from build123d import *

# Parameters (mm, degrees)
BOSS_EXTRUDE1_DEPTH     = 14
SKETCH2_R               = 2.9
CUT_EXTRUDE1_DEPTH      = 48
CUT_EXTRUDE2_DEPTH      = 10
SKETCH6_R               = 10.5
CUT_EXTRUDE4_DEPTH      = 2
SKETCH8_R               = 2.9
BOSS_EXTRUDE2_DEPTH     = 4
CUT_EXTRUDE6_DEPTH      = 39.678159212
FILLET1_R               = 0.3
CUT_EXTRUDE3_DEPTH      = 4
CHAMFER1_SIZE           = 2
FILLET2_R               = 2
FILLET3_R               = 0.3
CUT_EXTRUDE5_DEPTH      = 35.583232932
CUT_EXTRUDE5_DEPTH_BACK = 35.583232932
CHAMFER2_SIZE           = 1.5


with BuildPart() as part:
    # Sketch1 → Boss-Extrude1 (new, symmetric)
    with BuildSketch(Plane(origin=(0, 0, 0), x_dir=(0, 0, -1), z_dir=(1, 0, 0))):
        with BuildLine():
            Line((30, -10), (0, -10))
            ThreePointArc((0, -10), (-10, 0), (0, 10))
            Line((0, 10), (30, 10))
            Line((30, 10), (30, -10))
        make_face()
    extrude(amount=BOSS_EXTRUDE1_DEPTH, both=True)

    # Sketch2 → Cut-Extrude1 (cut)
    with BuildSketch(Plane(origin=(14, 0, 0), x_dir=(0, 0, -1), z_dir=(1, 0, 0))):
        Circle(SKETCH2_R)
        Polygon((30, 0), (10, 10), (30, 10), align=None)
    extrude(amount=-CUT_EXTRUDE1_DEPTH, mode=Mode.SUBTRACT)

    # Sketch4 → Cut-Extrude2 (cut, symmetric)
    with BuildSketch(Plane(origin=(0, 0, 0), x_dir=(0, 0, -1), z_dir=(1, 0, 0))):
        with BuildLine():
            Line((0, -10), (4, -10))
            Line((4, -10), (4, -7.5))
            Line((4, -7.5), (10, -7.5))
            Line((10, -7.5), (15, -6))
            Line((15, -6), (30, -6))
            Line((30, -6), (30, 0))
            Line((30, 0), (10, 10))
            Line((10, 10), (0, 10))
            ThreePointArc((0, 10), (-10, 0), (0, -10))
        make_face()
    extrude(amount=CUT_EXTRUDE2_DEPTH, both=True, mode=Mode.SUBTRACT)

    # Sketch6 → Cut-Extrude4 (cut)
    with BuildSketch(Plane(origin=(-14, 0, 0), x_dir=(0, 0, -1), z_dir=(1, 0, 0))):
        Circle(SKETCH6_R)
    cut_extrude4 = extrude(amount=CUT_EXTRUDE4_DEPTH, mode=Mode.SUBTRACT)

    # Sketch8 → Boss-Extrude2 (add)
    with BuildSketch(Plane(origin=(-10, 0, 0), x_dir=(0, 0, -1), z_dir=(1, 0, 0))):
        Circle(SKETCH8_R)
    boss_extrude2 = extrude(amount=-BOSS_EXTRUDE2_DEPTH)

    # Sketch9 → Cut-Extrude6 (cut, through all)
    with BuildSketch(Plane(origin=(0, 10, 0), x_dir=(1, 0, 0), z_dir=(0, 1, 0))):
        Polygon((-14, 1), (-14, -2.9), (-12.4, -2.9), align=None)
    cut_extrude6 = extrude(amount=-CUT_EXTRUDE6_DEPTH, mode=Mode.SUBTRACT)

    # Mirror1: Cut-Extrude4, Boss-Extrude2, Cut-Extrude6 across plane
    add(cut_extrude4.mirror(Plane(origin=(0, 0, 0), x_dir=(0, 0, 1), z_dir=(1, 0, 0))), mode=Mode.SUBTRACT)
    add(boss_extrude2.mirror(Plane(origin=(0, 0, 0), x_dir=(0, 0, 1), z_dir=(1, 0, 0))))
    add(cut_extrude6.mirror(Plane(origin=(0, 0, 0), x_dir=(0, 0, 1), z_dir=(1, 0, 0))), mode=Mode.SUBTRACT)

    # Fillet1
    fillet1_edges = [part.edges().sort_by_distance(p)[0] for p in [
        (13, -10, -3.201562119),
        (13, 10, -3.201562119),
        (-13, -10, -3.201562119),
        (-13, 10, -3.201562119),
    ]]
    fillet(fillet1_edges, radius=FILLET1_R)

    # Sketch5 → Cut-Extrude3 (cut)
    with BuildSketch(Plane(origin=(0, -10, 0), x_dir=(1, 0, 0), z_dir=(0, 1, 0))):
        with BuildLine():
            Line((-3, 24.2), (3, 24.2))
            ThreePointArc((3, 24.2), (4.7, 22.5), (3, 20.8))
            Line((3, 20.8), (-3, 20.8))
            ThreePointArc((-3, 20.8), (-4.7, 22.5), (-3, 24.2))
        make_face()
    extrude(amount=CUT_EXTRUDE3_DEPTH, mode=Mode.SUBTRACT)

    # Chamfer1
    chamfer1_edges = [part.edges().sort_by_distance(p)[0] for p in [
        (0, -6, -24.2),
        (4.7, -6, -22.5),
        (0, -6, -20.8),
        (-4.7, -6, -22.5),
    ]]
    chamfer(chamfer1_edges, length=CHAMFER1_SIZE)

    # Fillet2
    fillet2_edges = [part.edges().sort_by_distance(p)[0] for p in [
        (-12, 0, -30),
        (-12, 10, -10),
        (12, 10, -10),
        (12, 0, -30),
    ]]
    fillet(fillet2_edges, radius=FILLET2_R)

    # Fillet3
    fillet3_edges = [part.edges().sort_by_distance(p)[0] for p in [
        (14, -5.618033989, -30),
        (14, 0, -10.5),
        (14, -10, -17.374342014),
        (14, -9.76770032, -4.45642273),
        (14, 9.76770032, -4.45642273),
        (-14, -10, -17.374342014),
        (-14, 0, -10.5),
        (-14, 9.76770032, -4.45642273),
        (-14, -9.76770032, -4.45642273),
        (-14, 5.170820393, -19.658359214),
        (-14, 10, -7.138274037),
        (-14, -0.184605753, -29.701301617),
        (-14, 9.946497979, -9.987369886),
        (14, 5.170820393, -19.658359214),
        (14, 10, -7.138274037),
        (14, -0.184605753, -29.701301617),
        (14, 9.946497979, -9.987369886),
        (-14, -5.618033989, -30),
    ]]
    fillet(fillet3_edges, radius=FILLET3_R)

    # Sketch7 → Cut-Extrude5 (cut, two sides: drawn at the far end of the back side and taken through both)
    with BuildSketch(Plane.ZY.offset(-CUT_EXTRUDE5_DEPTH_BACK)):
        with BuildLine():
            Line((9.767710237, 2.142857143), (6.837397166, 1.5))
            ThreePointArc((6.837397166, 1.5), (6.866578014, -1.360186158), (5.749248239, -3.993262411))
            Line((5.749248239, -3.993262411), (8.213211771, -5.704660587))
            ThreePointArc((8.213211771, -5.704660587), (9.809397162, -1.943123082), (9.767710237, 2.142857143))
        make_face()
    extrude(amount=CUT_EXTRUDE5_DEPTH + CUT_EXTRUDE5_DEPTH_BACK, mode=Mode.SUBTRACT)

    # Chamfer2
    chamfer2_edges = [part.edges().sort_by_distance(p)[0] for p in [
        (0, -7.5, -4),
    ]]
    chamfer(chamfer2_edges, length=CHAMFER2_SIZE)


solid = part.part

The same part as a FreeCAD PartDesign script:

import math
import FreeCAD as App
import Part
import Sketcher

V = App.Vector
Q = App.Units.Quantity


def edges_at(feature, points):
    """Names of the edges that pass closest to the given points."""
    edges = feature.Shape.Edges
    near = lambda p: min(range(len(edges)), key=lambda i: edges[i].distToShape(Part.Vertex(*p))[0])
    return sorted({f"Edge{near(p) + 1}" for p in points})

doc = App.newDocument("Part")
body = doc.addObject("PartDesign::Body", "Body")

# Sketch on YZ plane
sketch1 = doc.addObject("Sketcher::SketchObject", "Sketch")
body.addObject(sketch1)
sketch1.AttachmentSupport = (doc.YZ_Plane, [""])
sketch1.MapMode = "FlatFace"
sketch1.addGeometry([
    Part.LineSegment(V(-10, 0, 0), V(-10, -30, 0)),
    Part.LineSegment(V(-10, -30, 0), V(10, -30, 0)),
    Part.LineSegment(V(10, -30, 0), V(10, 0, 0)),
    Part.ArcOfCircle(Part.Circle(V(0, 0, 0), V(0, 0, 1), 10), math.radians(0), math.radians(180)),
], False)
sketch1.addConstraint([
    Sketcher.Constraint("Coincident", 0, 2, 1, 1),
    Sketcher.Constraint("Coincident", 1, 2, 2, 1),
    Sketcher.Constraint("Tangent", 2, 2, 3, 1),
    Sketcher.Constraint("Tangent", 3, 2, 0, 1),
    Sketcher.Constraint("Vertical", 0),
    Sketcher.Constraint("Horizontal", 1),
    Sketcher.Constraint("Vertical", 2),
    Sketcher.Constraint("Coincident", 3, 3, -1, 1),
    Sketcher.Constraint("Radius", 3, Q("10 mm")),
    Sketcher.Constraint("DistanceY", 0, 2, 0, 1, Q("30 mm")),
])
pad1 = doc.addObject("PartDesign::Pad", "Pad")
body.addObject(pad1)
pad1.Profile = sketch1
pad1.Length = 28
pad1.Midplane = True

# Sketch on YZ plane
sketch2 = doc.addObject("Sketcher::SketchObject", "Sketch001")
body.addObject(sketch2)
sketch2.AttachmentSupport = (doc.YZ_Plane, [""])
sketch2.MapMode = "FlatFace"
sketch2.AttachmentOffset = App.Placement(V(0, 0, 14), App.Rotation())
sketch2.addGeometry([
    Part.Circle(V(0, 0, 0), V(0, 0, 1), 2.9),
    Part.LineSegment(V(10, -10, 0), V(0, -30, 0)),
    Part.LineSegment(V(0, -30, 0), V(10, -30, 0)),
    Part.LineSegment(V(10, -30, 0), V(10, -10, 0)),
], False)
sketch2.addConstraint([
    Sketcher.Constraint("Coincident", 1, 2, 2, 1),
    Sketcher.Constraint("Coincident", 2, 2, 3, 1),
    Sketcher.Constraint("Coincident", 3, 2, 1, 1),
    Sketcher.Constraint("Horizontal", 2),
    Sketcher.Constraint("Vertical", 3),
    Sketcher.Constraint("Coincident", 0, 3, -1, 1),
    Sketcher.Constraint("PointOnObject", 1, 2, -2),
    Sketcher.Constraint("Diameter", 0, Q("5.8 mm")),
    Sketcher.Constraint("DistanceX", 2, 1, 2, 2, Q("10 mm")),
    Sketcher.Constraint("DistanceY", 3, 1, 3, 2, Q("20 mm")),
    Sketcher.Constraint("DistanceY", 1, 2, -1, 1, Q("30 mm")),
])
pocket1 = doc.addObject("PartDesign::Pocket", "Pocket")
body.addObject(pocket1)
pocket1.Profile = sketch2
pocket1.Length = 48

# Sketch on YZ plane
sketch3 = doc.addObject("Sketcher::SketchObject", "Sketch002")
body.addObject(sketch3)
sketch3.AttachmentSupport = (doc.YZ_Plane, [""])
sketch3.MapMode = "FlatFace"
sketch3.addGeometry([
    Part.LineSegment(V(-10, 0, 0), V(-10, -4, 0)),  # 0
    Part.LineSegment(V(-10, -4, 0), V(-7.5, -4, 0)),  # 1
    Part.LineSegment(V(-7.5, -4, 0), V(-7.5, -10, 0)),  # 2
    Part.LineSegment(V(-7.5, -10, 0), V(-6, -15, 0)),  # 3
    Part.LineSegment(V(-6, -15, 0), V(-6, -30, 0)),  # 4
    Part.LineSegment(V(-6, -30, 0), V(0, -30, 0)),  # 5
    Part.LineSegment(V(0, -30, 0), V(10, -10, 0)),  # 6
    Part.LineSegment(V(10, -10, 0), V(10, 0, 0)),  # 7
    Part.ArcOfCircle(Part.Circle(V(0, 0, 0), V(0, 0, 1), 10), math.radians(0), math.radians(180)),  # 8
], False)
sketch3.addConstraint([
    Sketcher.Constraint("Coincident", 0, 2, 1, 1),
    Sketcher.Constraint("Coincident", 1, 2, 2, 1),
    Sketcher.Constraint("Coincident", 2, 2, 3, 1),
    Sketcher.Constraint("Coincident", 3, 2, 4, 1),
    Sketcher.Constraint("Coincident", 4, 2, 5, 1),
    Sketcher.Constraint("Coincident", 5, 2, 6, 1),
    Sketcher.Constraint("Coincident", 6, 2, 7, 1),
    Sketcher.Constraint("Tangent", 7, 2, 8, 1),
    Sketcher.Constraint("Tangent", 8, 2, 0, 1),
    Sketcher.Constraint("Vertical", 0),
    Sketcher.Constraint("Horizontal", 1),
    Sketcher.Constraint("Vertical", 2),
    Sketcher.Constraint("Vertical", 4),
    Sketcher.Constraint("Horizontal", 5),
    Sketcher.Constraint("Vertical", 7),
    Sketcher.Constraint("Coincident", 8, 3, -1, 1),
    Sketcher.Constraint("PointOnObject", 5, 2, -2),
    Sketcher.Constraint("Horizontal", 2, 2, 6, 2),
    Sketcher.Constraint("Equal", 5, 2),
    Sketcher.Constraint("Radius", 8, Q("10 mm")),
    Sketcher.Constraint("DistanceX", 5, 1, 5, 2, Q("6 mm")),
    Sketcher.Constraint("DistanceY", 0, 2, 0, 1, Q("4 mm")),
    Sketcher.Constraint("DistanceY", 4, 2, 4, 1, Q("15 mm")),
    Sketcher.Constraint("DistanceX", 1, 1, 1, 2, Q("2.5 mm")),
    Sketcher.Constraint("DistanceY", 3, 2, -1, 1, Q("15 mm")),
])
pocket2 = doc.addObject("PartDesign::Pocket", "Pocket001")
body.addObject(pocket2)
pocket2.Profile = sketch3
pocket2.Length = 20
pocket2.Midplane = True

# Sketch on YZ plane
sketch4 = doc.addObject("Sketcher::SketchObject", "Sketch003")
body.addObject(sketch4)
sketch4.AttachmentSupport = (doc.YZ_Plane, [""])
sketch4.MapMode = "FlatFace"
sketch4.AttachmentOffset = App.Placement(V(0, 0, -14), App.Rotation())
sketch4.addGeometry(Part.Circle(V(0, 0, 0), V(0, 0, 1), 10), False)
sketch4.addConstraint([
    Sketcher.Constraint("Coincident", 0, 3, -1, 1),
    Sketcher.Constraint("Diameter", 0, Q("21 mm")),
])
pocket3 = doc.addObject("PartDesign::Pocket", "Pocket002")
body.addObject(pocket3)
pocket3.Profile = sketch4
pocket3.Length = 2
pocket3.Reversed = True

# Sketch on YZ plane
sketch5 = doc.addObject("Sketcher::SketchObject", "Sketch004")
body.addObject(sketch5)
sketch5.AttachmentSupport = (doc.YZ_Plane, [""])
sketch5.MapMode = "FlatFace"
sketch5.AttachmentOffset = App.Placement(V(0, 0, -10), App.Rotation())
sketch5.addGeometry(Part.Circle(V(0, 0, 0), V(0, 0, 1), 2.9), False)
sketch5.addConstraint([
    Sketcher.Constraint("Coincident", 0, 3, -1, 1),
    Sketcher.Constraint("Diameter", 0, Q("5.8 mm")),
])
pad2 = doc.addObject("PartDesign::Pad", "Pad001")
body.addObject(pad2)
pad2.Profile = sketch5
pad2.Length = 4
pad2.Reversed = True

# Sketch on XZ plane
sketch6 = doc.addObject("Sketcher::SketchObject", "Sketch005")
body.addObject(sketch6)
sketch6.AttachmentSupport = (doc.XZ_Plane, [""])
sketch6.MapMode = "FlatFace"
sketch6.AttachmentOffset = App.Placement(V(0, 0, -10), App.Rotation())
sketch6.addGeometry([
    Part.LineSegment(V(-14, -1, 0), V(-14, 2.9, 0)),
    Part.LineSegment(V(-14, 2.9, 0), V(-12.4, 2.9, 0)),
    Part.LineSegment(V(-12.4, 2.9, 0), V(-14, -1, 0)),
], False)
sketch6.addConstraint([
    Sketcher.Constraint("Coincident", 0, 2, 1, 1),
    Sketcher.Constraint("Coincident", 1, 2, 2, 1),
    Sketcher.Constraint("Coincident", 2, 2, 0, 1),
    Sketcher.Constraint("Vertical", 0),
    Sketcher.Constraint("Horizontal", 1),
    Sketcher.Constraint("DistanceX", 1, 1, 1, 2, Q("1.6 mm")),
    Sketcher.Constraint("DistanceY", 0, 1, 0, 2, Q("3.9 mm")),
    Sketcher.Constraint("DistanceX", 0, 2, -1, 1, Q("14 mm")),
    Sketcher.Constraint("DistanceY", 2, 2, -1, 1, Q("1 mm")),
])
pocket4 = doc.addObject("PartDesign::Pocket", "Pocket003")
body.addObject(pocket4)
pocket4.Profile = sketch6
pocket4.Type = "ThroughAll"
pocket4.Reversed = True
doc.recompute()

mirrored = doc.addObject("PartDesign::Mirrored", "Mirrored")
body.addObject(mirrored)
mirrored.Originals = [pocket3, pad2, pocket4]
mirrored.MirrorPlane = (doc.YZ_Plane, [""])
body.Tip = mirrored
doc.recompute()

fillet = doc.addObject("PartDesign::Fillet", "Fillet")
body.addObject(fillet)
fillet.Base = (mirrored, edges_at(mirrored, [
    (13, -10, -3.202),
    (13, 10, -3.202),
    (-13, -10, -3.202),
    (-13, 10, -3.202),
]))
fillet.Radius = 0.3

# Sketch on XZ plane
sketch7 = doc.addObject("Sketcher::SketchObject", "Sketch006")
body.addObject(sketch7)
sketch7.AttachmentSupport = (doc.XZ_Plane, [""])
sketch7.MapMode = "FlatFace"
sketch7.AttachmentOffset = App.Placement(V(0, 0, 10), App.Rotation())
sketch7.addGeometry([
    Part.LineSegment(V(3, -24.2, 0), V(-3, -24.2, 0)),
    Part.ArcOfCircle(Part.Circle(V(-3, -22.5, 0), V(0, 0, 1), 1.7), math.radians(90), math.radians(270)),
    Part.LineSegment(V(-3, -20.8, 0), V(3, -20.8, 0)),
    Part.ArcOfCircle(Part.Circle(V(3, -22.5, 0), V(0, 0, 1), 1.7), math.radians(-90), math.radians(90)),
], False)
sketch7.addConstraint([
    Sketcher.Constraint("Tangent", 0, 2, 1, 2),
    Sketcher.Constraint("Tangent", 1, 1, 2, 1),
    Sketcher.Constraint("Tangent", 2, 2, 3, 2),
    Sketcher.Constraint("Tangent", 3, 1, 0, 1),
    Sketcher.Constraint("Horizontal", 0),
    Sketcher.Constraint("Horizontal", 2),
    Sketcher.Constraint("Radius", 1, Q("1.7 mm")),
    Sketcher.Constraint("DistanceX", 0, 2, 0, 1, Q("6 mm")),
    Sketcher.Constraint("DistanceX", 1, 3, -1, 1, Q("3 mm")),
    Sketcher.Constraint("DistanceY", 1, 3, -1, 1, Q("22.5 mm")),
])
pocket5 = doc.addObject("PartDesign::Pocket", "Pocket004")
body.addObject(pocket5)
pocket5.Profile = sketch7
pocket5.Length = 4
doc.recompute()

chamfer = doc.addObject("PartDesign::Chamfer", "Chamfer")
body.addObject(chamfer)
chamfer.Base = (pocket5, edges_at(pocket5, [
    (0, -6, -24.2),
    (4.7, -6, -22.5),
    (0, -6, -20.8),
    (-4.7, -6, -22.5),
]))
chamfer.Size = 2
doc.recompute()

fillet2 = doc.addObject("PartDesign::Fillet", "Fillet001")
body.addObject(fillet2)
fillet2.Base = (chamfer, edges_at(chamfer, [
    (-12, 0, -30),
    (-12, 10, -10),
    (12, 10, -10),
    (12, 0, -30),
]))
fillet2.Radius = 2
doc.recompute()

fillet3 = doc.addObject("PartDesign::Fillet", "Fillet002")
body.addObject(fillet3)
fillet3.Base = (fillet2, edges_at(fillet2, [
    (14, -5.618, -30),
    (14, 0, -10.5),
    (14, -10, -17.374),
    (14, -9.768, -4.456),
    (14, 9.768, -4.456),
    (-14, -10, -17.374),
    (-14, 0, -10.5),
    (-14, 9.768, -4.456),
    (-14, -9.768, -4.456),
    (-14, 5.171, -19.658),
    (-14, 10, -7.138),
    (-14, -0.185, -29.701),
    (-14, 9.946, -9.987),
    (14, 5.171, -19.658),
    (14, 10, -7.138),
    (14, -0.185, -29.701),
    (14, 9.946, -9.987),
    (-14, -5.618, -30),
]))
fillet3.Radius = 0.3

# Sketch on YZ plane
sketch8 = doc.addObject("Sketcher::SketchObject", "Sketch007")
body.addObject(sketch8)
sketch8.AttachmentSupport = (doc.YZ_Plane, [""])
sketch8.MapMode = "FlatFace"
sketch8.addGeometry([
    Part.LineSegment(V(2.1, 9.8, 0), V(1.5, 6.8, 0)),
    Part.ArcOfCircle(Part.Circle(V(0, 0, 0), V(0, 0, 1), 7), math.radians(78), math.radians(125)),
    Part.LineSegment(V(-4, 5.7, 0), V(-5.7, 8.2, 0)),
    Part.ArcOfCircle(Part.Circle(V(0, 0, 0), V(0, 0, 1), 10), math.radians(78), math.radians(125)),
], False)
sketch8.addConstraint([
    Sketcher.Constraint("Coincident", 0, 2, 1, 1),
    Sketcher.Constraint("Coincident", 1, 2, 2, 1),
    Sketcher.Constraint("Coincident", 2, 2, 3, 2),
    Sketcher.Constraint("Coincident", 3, 1, 0, 1),
    Sketcher.Constraint("Coincident", 1, 3, -1, 1),
    Sketcher.Constraint("Coincident", 3, 3, -1, 1),
    Sketcher.Constraint("Radius", 1, Q("7 mm")),
    Sketcher.Constraint("Radius", 3, Q("10 mm")),
    Sketcher.Constraint("DistanceX", -1, 1, 0, 2, Q("1.5 mm")),
    Sketcher.Constraint("DistanceX", 2, 2, 1, 2, Q("1.711398 mm")),
    Sketcher.Constraint("DistanceY", 2, 2, 3, 1, Q("1.554498 mm")),
    Sketcher.Constraint("DistanceY", -1, 1, 1, 2, Q("5.749248 mm")),
])
pocket6 = doc.addObject("PartDesign::Pocket", "Pocket005")
body.addObject(pocket6)
pocket6.Profile = sketch8
pocket6.Type = "ThroughAll"
pocket6.Midplane = True
doc.recompute()

chamfer2 = doc.addObject("PartDesign::Chamfer", "Chamfer001")
body.addObject(chamfer2)
chamfer2.Base = (pocket6, edges_at(pocket6, [(0, -7.5, -4)]))
chamfer2.Size = 1.5

doc.recompute()
